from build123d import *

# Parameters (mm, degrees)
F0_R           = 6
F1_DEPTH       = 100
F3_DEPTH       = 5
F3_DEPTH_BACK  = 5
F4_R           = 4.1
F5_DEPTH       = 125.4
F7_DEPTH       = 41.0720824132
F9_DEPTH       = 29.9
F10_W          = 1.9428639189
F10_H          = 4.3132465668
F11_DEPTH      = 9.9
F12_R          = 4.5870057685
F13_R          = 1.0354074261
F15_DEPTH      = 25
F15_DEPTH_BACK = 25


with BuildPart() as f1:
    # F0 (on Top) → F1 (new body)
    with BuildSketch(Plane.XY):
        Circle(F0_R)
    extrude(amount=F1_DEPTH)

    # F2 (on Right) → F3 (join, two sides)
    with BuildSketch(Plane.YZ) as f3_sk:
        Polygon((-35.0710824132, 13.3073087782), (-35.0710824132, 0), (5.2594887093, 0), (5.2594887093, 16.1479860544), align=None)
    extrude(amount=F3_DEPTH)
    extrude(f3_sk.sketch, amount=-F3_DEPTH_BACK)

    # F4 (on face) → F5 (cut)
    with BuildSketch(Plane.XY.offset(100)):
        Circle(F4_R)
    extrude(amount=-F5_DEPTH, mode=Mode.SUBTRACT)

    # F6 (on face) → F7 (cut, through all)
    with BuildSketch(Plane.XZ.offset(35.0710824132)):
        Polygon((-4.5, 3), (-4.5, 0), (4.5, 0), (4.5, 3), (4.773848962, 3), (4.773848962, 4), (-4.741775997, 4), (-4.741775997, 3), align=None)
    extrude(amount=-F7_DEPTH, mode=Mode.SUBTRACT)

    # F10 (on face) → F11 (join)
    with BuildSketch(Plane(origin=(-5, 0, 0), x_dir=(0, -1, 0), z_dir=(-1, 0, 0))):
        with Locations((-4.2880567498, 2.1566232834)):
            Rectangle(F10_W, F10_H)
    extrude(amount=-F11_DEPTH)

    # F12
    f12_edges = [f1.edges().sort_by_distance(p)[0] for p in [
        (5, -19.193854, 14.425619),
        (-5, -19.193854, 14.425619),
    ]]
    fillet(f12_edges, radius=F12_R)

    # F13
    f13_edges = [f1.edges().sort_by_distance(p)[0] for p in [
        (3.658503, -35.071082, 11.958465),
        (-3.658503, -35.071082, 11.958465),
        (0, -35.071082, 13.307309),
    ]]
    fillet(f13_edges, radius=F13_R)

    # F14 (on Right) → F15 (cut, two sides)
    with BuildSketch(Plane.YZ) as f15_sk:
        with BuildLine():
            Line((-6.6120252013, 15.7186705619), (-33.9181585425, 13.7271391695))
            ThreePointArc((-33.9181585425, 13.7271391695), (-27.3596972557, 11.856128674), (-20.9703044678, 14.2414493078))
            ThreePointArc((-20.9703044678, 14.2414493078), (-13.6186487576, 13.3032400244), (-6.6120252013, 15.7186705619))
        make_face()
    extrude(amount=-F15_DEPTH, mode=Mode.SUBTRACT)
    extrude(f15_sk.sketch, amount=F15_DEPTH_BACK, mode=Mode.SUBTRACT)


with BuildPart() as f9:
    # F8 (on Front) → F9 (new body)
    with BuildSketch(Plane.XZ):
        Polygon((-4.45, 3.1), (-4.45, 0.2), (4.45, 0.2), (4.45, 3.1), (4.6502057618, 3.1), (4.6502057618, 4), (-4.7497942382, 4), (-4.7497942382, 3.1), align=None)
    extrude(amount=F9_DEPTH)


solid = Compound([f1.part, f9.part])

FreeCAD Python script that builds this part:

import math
import FreeCAD as App
import Part
import Sketcher
Q = App.Units.Quantity


def edges_at(feature, points):
    """Names of the edges that pass closest to the given points."""
    edges = feature.Shape.Edges
    near = lambda p: min(range(len(edges)), key=lambda i: edges[i].distToShape(Part.Vertex(*p))[0])
    return sorted({f"Edge{near(p) + 1}" for p in points})

doc = App.newDocument("Part")
body = doc.addObject("PartDesign::Body", "Body")

# Sketch on XY plane
sketch1 = body.newObject("Sketcher::SketchObject", "Sketch")
sketch1.AttachmentSupport = (doc.getObject("XY_Plane"), [""])
sketch1.MapMode = "FlatFace"
sketch1.addGeometry(Part.Circle(App.Vector(0, 0, 0), App.Vector(0, 0, 1), 6), False)
sketch1.addConstraint([
    Sketcher.Constraint("Coincident", 0, 3, -1, 1),
    Sketcher.Constraint("Diameter", 0, Q("12 mm")),
])
pad1 = body.newObject("PartDesign::Pad", "Pad")
pad1.Profile = sketch1
pad1.Length = 100

# Sketch on YZ plane
sketch2 = body.newObject("Sketcher::SketchObject", "Sketch001")
sketch2.AttachmentSupport = (doc.getObject("YZ_Plane"), [""])
sketch2.MapMode = "FlatFace"
sketch2.addGeometry([
    Part.LineSegment(App.Vector(-35, 13, 0), App.Vector(-35, 0, 0)),
    Part.LineSegment(App.Vector(-35, 0, 0), App.Vector(5, 0, 0)),
    Part.LineSegment(App.Vector(5, 0, 0), App.Vector(5, 16, 0)),
    Part.LineSegment(App.Vector(5, 16, 0), App.Vector(-35, 13, 0)),
], False)
sketch2.addConstraint([
    Sketcher.Constraint("Coincident", 0, 2, 1, 1),
    Sketcher.Constraint("Coincident", 1, 2, 2, 1),
    Sketcher.Constraint("Coincident", 2, 2, 3, 1),
    Sketcher.Constraint("Coincident", 3, 2, 0, 1),
    Sketcher.Constraint("Vertical", 0),
    Sketcher.Constraint("Horizontal", 1),
    Sketcher.Constraint("Vertical", 2),
    Sketcher.Constraint("PointOnObject", 0, 2, -1),
    Sketcher.Constraint("DistanceX", 1, 1, 1, 2, Q("40.330571 mm")),
    Sketcher.Constraint("DistanceY", 0, 2, 0, 1, Q("13.307309 mm")),
    Sketcher.Constraint("Distance", 3, Q("40.430489 mm")),
    Sketcher.Constraint("DistanceX", -1, 1, 1, 2, Q("5.259489 mm")),
])
pad2 = body.newObject("PartDesign::Pad", "Pad001")
pad2.Profile = sketch2
pad2.Type = "TwoLengths"
pad2.Length = 5
pad2.Length2 = 5

# Sketch on XY plane
sketch3 = body.newObject("Sketcher::SketchObject", "Sketch002")
sketch3.AttachmentSupport = (doc.getObject("XY_Plane"), [""])
sketch3.MapMode = "FlatFace"
sketch3.AttachmentOffset = App.Placement(App.Vector(0, 0, 100), App.Rotation())
sketch3.addGeometry(Part.Circle(App.Vector(0, 0, 0), App.Vector(0, 0, 1), 4.1), False)
sketch3.addConstraint([
    Sketcher.Constraint("Coincident", 0, 3, -1, 1),
    Sketcher.Constraint("Diameter", 0, Q("8.2 mm")),
])
pocket1 = body.newObject("PartDesign::Pocket", "Pocket")
pocket1.Profile = sketch3
pocket1.Length = 125.4

# Sketch on XZ plane
sketch4 = body.newObject("Sketcher::SketchObject", "Sketch003")
sketch4.AttachmentSupport = (doc.getObject("XZ_Plane"), [""])
sketch4.MapMode = "FlatFace"
sketch4.AttachmentOffset = App.Placement(App.Vector(0, 0, 35.071082), App.Rotation())
sketch4.addGeometry([
    Part.LineSegment(App.Vector(-4.5, 3, 0), App.Vector(-4.5, 0, 0)),  # 0
    Part.LineSegment(App.Vector(-4.5, 0, 0), App.Vector(4.5, 0, 0)),  # 1
    Part.LineSegment(App.Vector(4.5, 0, 0), App.Vector(4.5, 3, 0)),  # 2
    Part.LineSegment(App.Vector(4.5, 3, 0), App.Vector(4.77, 3, 0)),  # 3
    Part.LineSegment(App.Vector(4.77, 3, 0), App.Vector(4.77, 4, 0)),  # 4
    Part.LineSegment(App.Vector(4.77, 4, 0), App.Vector(-4.74, 4, 0)),  # 5
    Part.LineSegment(App.Vector(-4.74, 4, 0), App.Vector(-4.74, 3, 0)),  # 6
    Part.LineSegment(App.Vector(-4.74, 3, 0), App.Vector(-4.5, 3, 0)),  # 7
], False)
sketch4.addConstraint([
    Sketcher.Constraint("Coincident", 0, 2, 1, 1),
    Sketcher.Constraint("Coincident", 1, 2, 2, 1),
    Sketcher.Constraint("Coincident", 2, 2, 3, 1),
    Sketcher.Constraint("Coincident", 3, 2, 4, 1),
    Sketcher.Constraint("Coincident", 4, 2, 5, 1),
    Sketcher.Constraint("Coincident", 5, 2, 6, 1),
    Sketcher.Constraint("Coincident", 6, 2, 7, 1),
    Sketcher.Constraint("Coincident", 7, 2, 0, 1),
    Sketcher.Constraint("Vertical", 0),
    Sketcher.Constraint("Horizontal", 1),
    Sketcher.Constraint("Vertical", 2),
    Sketcher.Constraint("Horizontal", 3),
    Sketcher.Constraint("Vertical", 4),
    Sketcher.Constraint("Horizontal", 5),
    Sketcher.Constraint("Vertical", 6),
    Sketcher.Constraint("Horizontal", 7),
    Sketcher.Constraint("Symmetric", 0, 2, 1, 2, -1, 1),
    Sketcher.Constraint("Horizontal", 3, 2, 6, 2),
    Sketcher.Constraint("DistanceX", 1, 1, 1, 2, Q("9 mm")),
    Sketcher.Constraint("DistanceY", 0, 2, 0, 1, Q("3 mm")),
    Sketcher.Constraint("DistanceY", 4, 1, 4, 2, Q("1 mm")),
    Sketcher.Constraint("DistanceX", 3, 1, 3, 2, Q("0.273849 mm")),
    Sketcher.Constraint("DistanceX", 5, 2, 5, 1, Q("9.515625 mm")),
])
pocket2 = body.newObject("PartDesign::Pocket", "Pocket001")
pocket2.Profile = sketch4
pocket2.Type = "ThroughAll"

# Sketch on YZ plane
sketch5 = body.newObject("Sketcher::SketchObject", "Sketch004")
sketch5.AttachmentSupport = (doc.getObject("YZ_Plane"), [""])
sketch5.MapMode = "FlatFace"
sketch5.AttachmentOffset = App.Placement(App.Vector(0, 0, -5), App.Rotation())
sketch5.addGeometry([
    Part.LineSegment(App.Vector(5.3, 4.3, 0), App.Vector(5.3, 0, 0)),
    Part.LineSegment(App.Vector(5.3, 0, 0), App.Vector(3.3, 0, 0)),
    Part.LineSegment(App.Vector(3.3, 0, 0), App.Vector(3.3, 4.3, 0)),
    Part.LineSegment(App.Vector(3.3, 4.3, 0), App.Vector(5.3, 4.3, 0)),
], False)
sketch5.addConstraint([
    Sketcher.Constraint("Coincident", 0, 2, 1, 1),
    Sketcher.Constraint("Coincident", 1, 2, 2, 1),
    Sketcher.Constraint("Coincident", 2, 2, 3, 1),
    Sketcher.Constraint("Coincident", 3, 2, 0, 1),
    Sketcher.Constraint("Vertical", 0),
    Sketcher.Constraint("Horizontal", 1),
    Sketcher.Constraint("Vertical", 2),
    Sketcher.Constraint("Horizontal", 3),
    Sketcher.Constraint("PointOnObject", 0, 2, -1),
    Sketcher.Constraint("DistanceX", 1, 2, 1, 1, Q("1.942864 mm")),
    Sketcher.Constraint("DistanceY", 0, 2, 0, 1, Q("4.313247 mm")),
    Sketcher.Constraint("DistanceX", -1, 1, 0, 2, Q("5.259489 mm")),
])
pad3 = body.newObject("PartDesign::Pad", "Pad002")
pad3.Profile = sketch5
pad3.Length = 9.9
doc.recompute()

fillet = body.newObject("PartDesign::Fillet", "Fillet")
fillet.Base = (pad3, edges_at(pad3, [(5, -19.194, 14.426), (-5, -19.194, 14.426)]))
fillet.Radius = 4.587006
doc.recompute()

fillet2 = body.newObject("PartDesign::Fillet", "Fillet001")
fillet2.Base = (fillet, edges_at(fillet, [(3.659, -35.071, 11.958), (-3.659, -35.071, 11.958), (0, -35.071, 13.307)]))
fillet2.Radius = 1.035407

# Sketch on YZ plane
sketch6 = body.newObject("Sketcher::SketchObject", "Sketch005")
sketch6.AttachmentSupport = (doc.getObject("YZ_Plane"), [""])
sketch6.MapMode = "FlatFace"
sketch6.addGeometry([
    Part.LineSegment(App.Vector(-7, 16, 0), App.Vector(-34, 14, 0)),
    Part.ArcOfCircle(Part.Circle(App.Vector(-28, 23, 0), App.Vector(0, 0, 1), 11), math.radians(-124), math.radians(-51)),
    Part.ArcOfCircle(Part.Circle(App.Vector(-15, 30, 0), App.Vector(0, 0, 1), 16), math.radians(-110), math.radians(-58)),
], False)
sketch6.addConstraint([
    Sketcher.Constraint("Coincident", 0, 2, 1, 1),
    Sketcher.Constraint("Coincident", 1, 2, 2, 1),
    Sketcher.Constraint("Coincident", 2, 2, 0, 1),
    Sketcher.Constraint("Radius", 2, Q("16.292348 mm")),
    Sketcher.Constraint("Radius", 1, Q("10.919602 mm")),
    Sketcher.Constraint("DistanceX", 1, 3, -1, 1, Q("27.7931 mm")),
    Sketcher.Constraint("DistanceY", 0, 2, 2, 3, Q("15.782901 mm")),
    Sketcher.Constraint("Distance", 0, Q("27.378662 mm")),
    Sketcher.Constraint("DistanceX", 2, 3, -1, 1, Q("15.286051 mm")),
    Sketcher.Constraint("DistanceY", -1, 1, 2, 3, Q("29.51004 mm")),
    Sketcher.Constraint("DistanceX", 0, 2, -1, 1, Q("33.918159 mm")),
])
pocket3 = body.newObject("PartDesign::Pocket", "Pocket002")
pocket3.Profile = sketch6
pocket3.Type = "ThroughAll"
pocket3.Midplane = True
body2 = doc.addObject("PartDesign::Body", "Body001")

# Sketch on XZ plane
sketch7 = body2.newObject("Sketcher::SketchObject", "Sketch006")
sketch7.AttachmentSupport = (doc.getObject("XZ_Plane001"), [""])
sketch7.MapMode = "FlatFace"
sketch7.addGeometry([
    Part.LineSegment(App.Vector(-4.45, 3.1, 0), App.Vector(-4.45, 0.2, 0)),  # 0
    Part.LineSegment(App.Vector(-4.45, 0.2, 0), App.Vector(4.45, 0.2, 0)),  # 1
    Part.LineSegment(App.Vector(4.45, 0.2, 0), App.Vector(4.45, 3.1, 0)),  # 2
    Part.LineSegment(App.Vector(4.45, 3.1, 0), App.Vector(4.65, 3.1, 0)),  # 3
    Part.LineSegment(App.Vector(4.65, 3.1, 0), App.Vector(4.65, 4, 0)),  # 4
    Part.LineSegment(App.Vector(4.65, 4, 0), App.Vector(-4.75, 4, 0)),  # 5
    Part.LineSegment(App.Vector(-4.75, 4, 0), App.Vector(-4.75, 3.1, 0)),  # 6
    Part.LineSegment(App.Vector(-4.75, 3.1, 0), App.Vector(-4.45, 3.1, 0)),  # 7
], False)
sketch7.addConstraint([
    Sketcher.Constraint("Coincident", 0, 2, 1, 1),
    Sketcher.Constraint("Coincident", 1, 2, 2, 1),
    Sketcher.Constraint("Coincident", 2, 2, 3, 1),
    Sketcher.Constraint("Coincident", 3, 2, 4, 1),
    Sketcher.Constraint("Coincident", 4, 2, 5, 1),
    Sketcher.Constraint("Coincident", 5, 2, 6, 1),
    Sketcher.Constraint("Coincident", 6, 2, 7, 1),
    Sketcher.Constraint("Coincident", 7, 2, 0, 1),
    Sketcher.Constraint("Vertical", 0),
    Sketcher.Constraint("Horizontal", 1),
    Sketcher.Constraint("Vertical", 2),
    Sketcher.Constraint("Horizontal", 3),
    Sketcher.Constraint("Vertical", 4),
    Sketcher.Constraint("Horizontal", 5),
    Sketcher.Constraint("Vertical", 6),
    Sketcher.Constraint("Horizontal", 7),
    Sketcher.Constraint("Symmetric", 2, 2, 7, 2, -2),
    Sketcher.Constraint("DistanceX", 1, 1, 1, 2, Q("8.9 mm")),
    Sketcher.Constraint("DistanceX", 5, 2, 5, 1, Q("9.4 mm")),
    Sketcher.Constraint("DistanceY", 0, 2, 0, 1, Q("2.9 mm")),
    Sketcher.Constraint("DistanceY", 4, 1, 4, 2, Q("0.9 mm")),
    Sketcher.Constraint("DistanceY", -1, 1, 4, 2, Q("4 mm")),
    Sketcher.Constraint("DistanceX", 3, 1, 3, 2, Q("0.200206 mm")),
])
pad4 = body2.newObject("PartDesign::Pad", "Pad003")
pad4.Profile = sketch7
pad4.Length = 29.9

doc.recompute()
